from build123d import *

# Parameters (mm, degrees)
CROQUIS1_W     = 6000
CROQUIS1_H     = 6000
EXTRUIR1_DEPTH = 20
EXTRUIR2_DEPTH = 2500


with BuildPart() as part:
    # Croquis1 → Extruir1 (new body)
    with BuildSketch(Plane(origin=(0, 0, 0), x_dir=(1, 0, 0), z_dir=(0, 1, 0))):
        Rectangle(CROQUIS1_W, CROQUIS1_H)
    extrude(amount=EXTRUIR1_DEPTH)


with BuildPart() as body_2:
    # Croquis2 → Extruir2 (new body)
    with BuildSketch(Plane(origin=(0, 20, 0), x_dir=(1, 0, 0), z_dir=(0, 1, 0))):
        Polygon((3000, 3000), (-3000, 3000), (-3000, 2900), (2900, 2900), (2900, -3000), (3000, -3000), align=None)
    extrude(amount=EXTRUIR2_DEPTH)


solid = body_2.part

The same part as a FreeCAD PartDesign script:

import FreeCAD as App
import Part
import Sketcher

V = App.Vector


def add_polygon(sketch, points):
    """Adds a closed chain of lines whose ends are joined by coincident constraints."""
    first, n = sketch.GeometryCount, len(points)
    for a, b in zip(points, points[1:] + points[:1]):
        sketch.addGeometry(Part.LineSegment(App.Vector(*a, 0), App.Vector(*b, 0)), False)
    for i in range(n):
        sketch.addConstraint(Sketcher.Constraint("Coincident", first + i, 2, first + (i + 1) % n, 1))

doc = App.newDocument("Part")
body = doc.addObject("PartDesign::Body", "Body")

# Sketch on XZ plane
sketch1 = body.newObject("Sketcher::SketchObject", "Sketch")
sketch1.AttachmentSupport = (doc.getObject("XZ_Plane"), [""])
sketch1.MapMode = "FlatFace"
add_polygon(sketch1, [(-3000, -3000), (-3000, 3000), (3000, 3000), (3000, -3000)])  # lines 0-3
sketch1.addConstraint([
    Sketcher.Constraint("Vertical", 0),
    Sketcher.Constraint("Horizontal", 1),
    Sketcher.Constraint("Vertical", 2),
    Sketcher.Constraint("Horizontal", 3),
    Sketcher.Constraint("Symmetric", 0, 2, 2, 2, -1, 1),
    Sketcher.Constraint("Equal", 3, 0),
    Sketcher.Constraint("DistanceX", 1, 1, 1, 2, 6000.0),
])
pad1 = body.newObject("PartDesign::Pad", "Pad")
pad1.Profile = sketch1
pad1.Length = 20
pad1.Reversed = True
body2 = doc.addObject("PartDesign::Body", "Body001")

# Sketch on XZ plane
sketch2 = body2.newObject("Sketcher::SketchObject", "Sketch001")
sketch2.AttachmentSupport = (doc.getObject("XZ_Plane001"), [""])
sketch2.MapMode = "FlatFace"
sketch2.AttachmentOffset = App.Placement(V(0, 0, -20), App.Rotation())
add_polygon(sketch2, [(3000, -3000), (-3000, -3000), (-3000, -2900), (2900, -2900), (2900, 3000), (3000, 3000)])  # lines 0-5
sketch2.addConstraint([
    Sketcher.Constraint("Horizontal", 0),
    Sketcher.Constraint("Vertical", 1),
    Sketcher.Constraint("Horizontal", 2),
    Sketcher.Constraint("Vertical", 3),
    Sketcher.Constraint("Horizontal", 4),
    Sketcher.Constraint("Vertical", 5),
    Sketcher.Constraint("Symmetric", 0, 2, 4, 2, -1, 1),
    Sketcher.Constraint("Equal", 4, 1),
    Sketcher.Constraint("Equal", 2, 3),
    Sketcher.Constraint("DistanceX", 0, 2, 0, 1, 6000.0),
    Sketcher.Constraint("DistanceX", 2, 1, 2, 2, 5900.0),
])
pad2 = body2.newObject("PartDesign::Pad", "Pad001")
pad2.Profile = sketch2
pad2.Length = 2500
pad2.Reversed = True
body.Visibility = False

doc.recompute()
